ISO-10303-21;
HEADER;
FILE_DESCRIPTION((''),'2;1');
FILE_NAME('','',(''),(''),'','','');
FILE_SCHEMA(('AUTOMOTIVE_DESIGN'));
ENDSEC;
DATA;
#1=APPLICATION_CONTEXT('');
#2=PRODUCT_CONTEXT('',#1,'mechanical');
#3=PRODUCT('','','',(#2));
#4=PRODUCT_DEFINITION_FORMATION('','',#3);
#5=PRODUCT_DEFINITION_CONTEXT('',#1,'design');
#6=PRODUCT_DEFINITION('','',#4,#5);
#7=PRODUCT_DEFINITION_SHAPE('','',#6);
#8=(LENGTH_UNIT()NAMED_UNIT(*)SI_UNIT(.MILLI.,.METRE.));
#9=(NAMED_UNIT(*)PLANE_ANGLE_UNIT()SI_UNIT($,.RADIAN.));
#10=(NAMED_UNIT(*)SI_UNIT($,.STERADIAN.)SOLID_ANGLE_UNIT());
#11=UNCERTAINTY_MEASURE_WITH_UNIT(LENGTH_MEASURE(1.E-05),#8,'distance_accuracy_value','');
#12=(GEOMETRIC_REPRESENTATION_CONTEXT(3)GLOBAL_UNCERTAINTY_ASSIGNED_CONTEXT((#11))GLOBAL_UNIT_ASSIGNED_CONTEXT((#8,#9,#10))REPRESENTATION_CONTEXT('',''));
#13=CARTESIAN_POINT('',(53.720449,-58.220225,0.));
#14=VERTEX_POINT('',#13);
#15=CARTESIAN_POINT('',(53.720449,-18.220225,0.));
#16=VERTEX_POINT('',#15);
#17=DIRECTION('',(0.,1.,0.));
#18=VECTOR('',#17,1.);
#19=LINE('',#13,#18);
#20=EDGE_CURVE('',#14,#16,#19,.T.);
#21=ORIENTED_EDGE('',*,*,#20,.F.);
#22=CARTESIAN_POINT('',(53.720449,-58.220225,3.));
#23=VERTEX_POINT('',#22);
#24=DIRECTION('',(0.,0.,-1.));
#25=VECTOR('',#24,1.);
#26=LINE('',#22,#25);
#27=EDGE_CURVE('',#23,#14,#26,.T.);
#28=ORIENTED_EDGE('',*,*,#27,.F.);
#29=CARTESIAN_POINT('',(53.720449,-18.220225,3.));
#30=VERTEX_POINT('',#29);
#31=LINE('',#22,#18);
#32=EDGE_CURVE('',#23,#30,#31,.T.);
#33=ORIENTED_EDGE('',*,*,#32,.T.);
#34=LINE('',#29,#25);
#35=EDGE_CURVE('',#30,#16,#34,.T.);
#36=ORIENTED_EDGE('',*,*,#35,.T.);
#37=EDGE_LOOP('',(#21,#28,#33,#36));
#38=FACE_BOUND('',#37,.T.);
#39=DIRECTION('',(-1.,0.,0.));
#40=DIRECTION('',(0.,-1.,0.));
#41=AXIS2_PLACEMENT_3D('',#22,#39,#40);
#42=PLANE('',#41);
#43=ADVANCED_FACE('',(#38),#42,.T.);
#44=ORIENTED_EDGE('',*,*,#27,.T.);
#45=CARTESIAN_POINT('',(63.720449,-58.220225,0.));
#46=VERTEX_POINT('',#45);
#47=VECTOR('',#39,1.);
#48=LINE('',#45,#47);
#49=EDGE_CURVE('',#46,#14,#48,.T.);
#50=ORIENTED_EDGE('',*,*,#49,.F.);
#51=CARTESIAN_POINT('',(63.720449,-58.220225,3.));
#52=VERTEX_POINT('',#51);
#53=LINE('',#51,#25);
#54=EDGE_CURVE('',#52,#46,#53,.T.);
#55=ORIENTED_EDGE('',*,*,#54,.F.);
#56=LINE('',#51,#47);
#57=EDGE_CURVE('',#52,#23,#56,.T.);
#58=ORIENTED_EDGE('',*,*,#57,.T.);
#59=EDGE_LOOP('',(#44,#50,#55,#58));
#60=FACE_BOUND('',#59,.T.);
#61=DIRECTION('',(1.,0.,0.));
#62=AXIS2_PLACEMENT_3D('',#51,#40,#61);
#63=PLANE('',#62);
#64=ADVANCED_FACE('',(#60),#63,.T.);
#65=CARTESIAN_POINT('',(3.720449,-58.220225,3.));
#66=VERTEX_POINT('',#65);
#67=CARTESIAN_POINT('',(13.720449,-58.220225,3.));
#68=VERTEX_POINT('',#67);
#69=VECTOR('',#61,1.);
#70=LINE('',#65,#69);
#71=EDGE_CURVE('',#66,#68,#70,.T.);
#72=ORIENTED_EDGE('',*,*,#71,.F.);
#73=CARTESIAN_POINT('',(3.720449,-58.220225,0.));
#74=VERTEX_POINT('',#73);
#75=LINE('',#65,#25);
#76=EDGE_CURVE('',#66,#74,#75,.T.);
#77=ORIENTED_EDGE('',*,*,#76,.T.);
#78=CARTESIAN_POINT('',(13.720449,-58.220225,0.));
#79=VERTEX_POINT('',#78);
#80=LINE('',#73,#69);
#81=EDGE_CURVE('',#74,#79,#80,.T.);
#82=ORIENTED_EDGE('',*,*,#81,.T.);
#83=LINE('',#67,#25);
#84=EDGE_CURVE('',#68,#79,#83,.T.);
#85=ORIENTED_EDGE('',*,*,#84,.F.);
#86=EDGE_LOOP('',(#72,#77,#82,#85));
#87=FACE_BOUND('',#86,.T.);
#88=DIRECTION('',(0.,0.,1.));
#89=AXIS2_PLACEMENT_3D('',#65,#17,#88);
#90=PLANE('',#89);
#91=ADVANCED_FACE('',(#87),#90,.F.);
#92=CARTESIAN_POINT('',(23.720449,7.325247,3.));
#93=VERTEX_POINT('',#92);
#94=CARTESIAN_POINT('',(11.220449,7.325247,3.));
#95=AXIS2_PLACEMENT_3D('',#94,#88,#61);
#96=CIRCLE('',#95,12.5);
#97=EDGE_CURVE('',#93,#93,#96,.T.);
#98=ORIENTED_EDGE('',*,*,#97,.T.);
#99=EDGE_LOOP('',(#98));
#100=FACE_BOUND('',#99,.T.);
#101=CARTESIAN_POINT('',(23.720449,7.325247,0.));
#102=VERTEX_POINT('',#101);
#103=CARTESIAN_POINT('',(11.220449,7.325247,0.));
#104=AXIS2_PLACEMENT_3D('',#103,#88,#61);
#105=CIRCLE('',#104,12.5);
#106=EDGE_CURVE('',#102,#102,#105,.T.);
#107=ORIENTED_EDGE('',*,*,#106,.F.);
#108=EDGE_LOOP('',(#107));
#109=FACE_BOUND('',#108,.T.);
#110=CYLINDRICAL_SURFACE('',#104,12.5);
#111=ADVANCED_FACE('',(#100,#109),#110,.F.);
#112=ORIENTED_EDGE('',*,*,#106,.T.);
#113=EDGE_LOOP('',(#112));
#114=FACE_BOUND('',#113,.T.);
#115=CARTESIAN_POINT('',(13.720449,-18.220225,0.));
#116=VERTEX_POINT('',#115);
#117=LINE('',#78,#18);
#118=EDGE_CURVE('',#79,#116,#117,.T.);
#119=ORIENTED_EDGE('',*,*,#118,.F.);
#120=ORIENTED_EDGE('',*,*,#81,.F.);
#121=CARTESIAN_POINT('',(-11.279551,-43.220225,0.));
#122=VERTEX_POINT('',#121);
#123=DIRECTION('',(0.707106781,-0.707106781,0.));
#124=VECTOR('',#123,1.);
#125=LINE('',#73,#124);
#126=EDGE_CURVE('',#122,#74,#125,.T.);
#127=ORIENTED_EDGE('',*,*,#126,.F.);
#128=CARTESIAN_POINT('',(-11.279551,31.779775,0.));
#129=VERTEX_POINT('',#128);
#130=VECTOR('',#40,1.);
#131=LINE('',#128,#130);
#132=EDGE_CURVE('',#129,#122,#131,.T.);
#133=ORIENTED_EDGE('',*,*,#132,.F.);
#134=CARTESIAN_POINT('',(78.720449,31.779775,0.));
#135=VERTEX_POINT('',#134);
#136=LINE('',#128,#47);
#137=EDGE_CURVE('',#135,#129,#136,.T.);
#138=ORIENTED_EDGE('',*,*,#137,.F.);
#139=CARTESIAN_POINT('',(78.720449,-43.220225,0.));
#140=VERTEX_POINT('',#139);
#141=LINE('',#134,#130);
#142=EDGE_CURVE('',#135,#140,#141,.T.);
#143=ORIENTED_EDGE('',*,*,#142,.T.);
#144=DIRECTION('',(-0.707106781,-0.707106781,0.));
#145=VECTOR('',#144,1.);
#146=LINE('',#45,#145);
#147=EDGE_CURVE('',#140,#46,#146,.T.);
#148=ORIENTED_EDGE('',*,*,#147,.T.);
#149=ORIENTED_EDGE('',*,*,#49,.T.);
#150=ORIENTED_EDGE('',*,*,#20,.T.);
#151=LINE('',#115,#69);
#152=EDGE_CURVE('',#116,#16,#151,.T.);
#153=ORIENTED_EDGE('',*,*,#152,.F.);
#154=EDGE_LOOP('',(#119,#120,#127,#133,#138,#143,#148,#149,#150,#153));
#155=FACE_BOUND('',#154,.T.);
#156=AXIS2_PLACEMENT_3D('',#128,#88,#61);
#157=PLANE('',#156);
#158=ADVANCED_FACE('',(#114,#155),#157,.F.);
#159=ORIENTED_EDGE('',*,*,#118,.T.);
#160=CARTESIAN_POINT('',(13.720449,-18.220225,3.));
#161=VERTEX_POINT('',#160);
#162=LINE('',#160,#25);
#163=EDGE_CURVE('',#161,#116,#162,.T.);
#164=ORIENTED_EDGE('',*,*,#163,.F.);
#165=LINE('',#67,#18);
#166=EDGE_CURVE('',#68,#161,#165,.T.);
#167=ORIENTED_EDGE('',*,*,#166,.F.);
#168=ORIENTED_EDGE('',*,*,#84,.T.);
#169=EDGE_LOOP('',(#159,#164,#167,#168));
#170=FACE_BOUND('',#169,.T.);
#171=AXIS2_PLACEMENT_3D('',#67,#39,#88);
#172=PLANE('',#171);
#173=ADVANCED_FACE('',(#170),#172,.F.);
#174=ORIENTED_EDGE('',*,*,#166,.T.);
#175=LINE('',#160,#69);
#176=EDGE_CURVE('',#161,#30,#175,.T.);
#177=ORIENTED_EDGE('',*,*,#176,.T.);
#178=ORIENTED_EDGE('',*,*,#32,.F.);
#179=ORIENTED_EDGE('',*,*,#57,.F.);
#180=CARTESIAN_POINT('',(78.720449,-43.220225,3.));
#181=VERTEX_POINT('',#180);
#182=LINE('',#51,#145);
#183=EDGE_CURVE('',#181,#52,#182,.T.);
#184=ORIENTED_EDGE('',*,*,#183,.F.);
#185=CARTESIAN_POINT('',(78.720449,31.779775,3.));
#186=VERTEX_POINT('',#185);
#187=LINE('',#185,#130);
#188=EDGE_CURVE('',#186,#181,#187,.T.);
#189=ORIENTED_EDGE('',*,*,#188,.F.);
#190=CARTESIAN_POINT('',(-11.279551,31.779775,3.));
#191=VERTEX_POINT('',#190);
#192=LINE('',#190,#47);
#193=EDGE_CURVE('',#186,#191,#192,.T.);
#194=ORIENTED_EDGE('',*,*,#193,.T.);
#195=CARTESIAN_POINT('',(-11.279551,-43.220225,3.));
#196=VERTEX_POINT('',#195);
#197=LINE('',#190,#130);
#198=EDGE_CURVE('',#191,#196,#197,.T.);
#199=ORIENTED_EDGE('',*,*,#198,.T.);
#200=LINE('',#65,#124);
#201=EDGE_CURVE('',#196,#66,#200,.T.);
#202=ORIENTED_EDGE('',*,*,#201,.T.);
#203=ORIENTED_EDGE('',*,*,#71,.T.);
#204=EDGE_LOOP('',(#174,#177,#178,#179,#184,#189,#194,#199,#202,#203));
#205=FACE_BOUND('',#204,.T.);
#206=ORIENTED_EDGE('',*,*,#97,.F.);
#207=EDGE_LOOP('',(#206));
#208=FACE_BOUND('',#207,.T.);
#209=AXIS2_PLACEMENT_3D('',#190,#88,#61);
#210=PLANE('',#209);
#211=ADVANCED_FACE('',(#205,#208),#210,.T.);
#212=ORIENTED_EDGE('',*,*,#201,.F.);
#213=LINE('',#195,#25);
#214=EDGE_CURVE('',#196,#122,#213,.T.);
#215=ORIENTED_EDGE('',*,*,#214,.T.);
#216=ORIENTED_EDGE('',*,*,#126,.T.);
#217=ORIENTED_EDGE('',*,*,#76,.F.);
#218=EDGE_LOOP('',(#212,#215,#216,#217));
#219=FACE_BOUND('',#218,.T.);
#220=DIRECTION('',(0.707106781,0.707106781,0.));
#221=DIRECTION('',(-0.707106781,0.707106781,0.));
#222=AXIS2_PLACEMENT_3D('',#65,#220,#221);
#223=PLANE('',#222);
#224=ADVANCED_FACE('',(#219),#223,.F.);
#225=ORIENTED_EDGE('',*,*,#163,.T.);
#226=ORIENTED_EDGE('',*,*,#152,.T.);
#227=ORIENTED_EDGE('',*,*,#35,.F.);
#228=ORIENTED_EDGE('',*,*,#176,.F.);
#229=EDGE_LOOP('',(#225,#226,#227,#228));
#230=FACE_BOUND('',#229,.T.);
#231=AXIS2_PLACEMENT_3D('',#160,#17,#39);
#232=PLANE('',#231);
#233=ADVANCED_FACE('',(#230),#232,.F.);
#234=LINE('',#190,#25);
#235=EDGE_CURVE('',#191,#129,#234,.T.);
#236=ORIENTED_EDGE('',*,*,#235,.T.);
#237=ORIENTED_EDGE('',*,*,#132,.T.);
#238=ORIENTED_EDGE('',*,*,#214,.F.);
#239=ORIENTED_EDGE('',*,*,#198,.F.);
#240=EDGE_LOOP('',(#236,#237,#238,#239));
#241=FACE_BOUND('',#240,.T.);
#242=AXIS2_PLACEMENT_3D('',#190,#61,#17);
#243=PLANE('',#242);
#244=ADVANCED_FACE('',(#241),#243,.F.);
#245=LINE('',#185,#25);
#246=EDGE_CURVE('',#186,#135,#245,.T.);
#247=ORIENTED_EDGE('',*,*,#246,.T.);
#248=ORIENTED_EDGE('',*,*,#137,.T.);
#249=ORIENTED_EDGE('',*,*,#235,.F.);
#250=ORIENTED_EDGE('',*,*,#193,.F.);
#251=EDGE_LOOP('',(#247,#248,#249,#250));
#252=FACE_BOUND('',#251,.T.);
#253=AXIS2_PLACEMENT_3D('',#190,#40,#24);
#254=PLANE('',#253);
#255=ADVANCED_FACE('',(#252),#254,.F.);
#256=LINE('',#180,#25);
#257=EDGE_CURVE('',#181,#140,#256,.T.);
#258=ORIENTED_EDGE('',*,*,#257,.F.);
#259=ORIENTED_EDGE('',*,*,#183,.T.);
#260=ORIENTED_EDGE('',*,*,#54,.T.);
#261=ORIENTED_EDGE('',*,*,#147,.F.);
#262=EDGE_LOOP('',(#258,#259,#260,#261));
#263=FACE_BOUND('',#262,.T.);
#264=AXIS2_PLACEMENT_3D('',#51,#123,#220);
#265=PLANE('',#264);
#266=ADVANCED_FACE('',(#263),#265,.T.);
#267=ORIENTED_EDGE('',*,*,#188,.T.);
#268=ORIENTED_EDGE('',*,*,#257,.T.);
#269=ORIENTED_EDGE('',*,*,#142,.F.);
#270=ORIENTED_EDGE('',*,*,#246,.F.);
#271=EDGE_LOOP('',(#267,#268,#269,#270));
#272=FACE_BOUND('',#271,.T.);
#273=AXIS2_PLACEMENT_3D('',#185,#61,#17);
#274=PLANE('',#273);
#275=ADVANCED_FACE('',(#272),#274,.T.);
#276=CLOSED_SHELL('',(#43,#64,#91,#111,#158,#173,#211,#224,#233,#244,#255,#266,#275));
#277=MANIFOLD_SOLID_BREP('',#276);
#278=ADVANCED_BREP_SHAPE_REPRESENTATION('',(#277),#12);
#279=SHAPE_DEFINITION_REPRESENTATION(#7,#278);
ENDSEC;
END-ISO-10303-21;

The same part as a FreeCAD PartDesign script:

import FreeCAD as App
import Part
import Sketcher
Q = App.Units.Quantity

doc = App.newDocument("Part")
params = doc.addObject("Spreadsheet::Sheet", "Params")
for row, (alias, value) in enumerate([
    ("sketch1_width", "10 mm"),
    ("sketch1_width2", "20 mm"),
    ("sketch1_width3", "45 mm"),
    ("sketch1_height", "40 mm"),
    ("sketch1_height2", "50 mm"),
    ("pad1_length", "3 mm"),
    ("sketch2_diameter", "25 mm"),
], start=1):
    params.set(f"A{row}", alias)
    params.set(f"B{row}", "=" + value)
    params.setAlias(f"B{row}", alias)

body = doc.addObject("PartDesign::Body", "Body")

# Sketch on XY plane
sketch1 = body.newObject("Sketcher::SketchObject", "Sketch")
sketch1.AttachmentSupport = (doc.getObject("XY_Plane"), [""])
sketch1.MapMode = "FlatFace"
sketch1.addGeometry([
    Part.LineSegment(App.Vector(-11, -43, 0), App.Vector(4, -58, 0)),  # 0
    Part.LineSegment(App.Vector(4, -58, 0), App.Vector(14, -58, 0)),  # 1
    Part.LineSegment(App.Vector(14, -58, 0), App.Vector(14, -18, 0)),  # 2
    Part.LineSegment(App.Vector(14, -18, 0), App.Vector(34, -18, 0)),  # 3
    Part.LineSegment(App.Vector(34, -18, 0), App.Vector(34, 32, 0)),  # 4
    Part.LineSegment(App.Vector(34, 32, 0), App.Vector(-11, 32, 0)),  # 5
    Part.LineSegment(App.Vector(-11, 32, 0), App.Vector(-11, -43, 0)),  # 6
], False)
sketch1.addConstraint([
    Sketcher.Constraint("Coincident", 0, 2, 1, 1),
    Sketcher.Constraint("Coincident", 1, 2, 2, 1),
    Sketcher.Constraint("Coincident", 2, 2, 3, 1),
    Sketcher.Constraint("Coincident", 3, 2, 4, 1),
    Sketcher.Constraint("Coincident", 4, 2, 5, 1),
    Sketcher.Constraint("Coincident", 5, 2, 6, 1),
    Sketcher.Constraint("Coincident", 6, 2, 0, 1),
    Sketcher.Constraint("Horizontal", 1),
    Sketcher.Constraint("Vertical", 2),
    Sketcher.Constraint("Horizontal", 3),
    Sketcher.Constraint("Vertical", 4),
    Sketcher.Constraint("Horizontal", 5),
    Sketcher.Constraint("Vertical", 6),
    Sketcher.Constraint("DistanceX", 1, 1, 1, 2, Q("10 mm")),
    Sketcher.Constraint("DistanceX", 3, 1, 3, 2, Q("20 mm")),
    Sketcher.Constraint("DistanceX", 5, 2, 5, 1, Q("45 mm")),
    Sketcher.Constraint("DistanceY", 2, 1, 2, 2, Q("40 mm")),
    Sketcher.Constraint("DistanceY", 4, 1, 4, 2, Q("50 mm")),
    Sketcher.Constraint("DistanceY", 6, 2, 6, 1, Q("75 mm")),
    Sketcher.Constraint("DistanceX", -1, 1, 0, 2, Q("3.720449 mm")),
    Sketcher.Constraint("DistanceY", 0, 2, -1, 1, Q("58.220225 mm")),
])
sketch1.setExpression("Constraints[13]", "Params.sketch1_width")
sketch1.setExpression("Constraints[14]", "Params.sketch1_width2")
sketch1.setExpression("Constraints[15]", "Params.sketch1_width3")
sketch1.setExpression("Constraints[16]", "Params.sketch1_height")
sketch1.setExpression("Constraints[17]", "Params.sketch1_height2")
pad1 = body.newObject("PartDesign::Pad", "Pad")
pad1.Profile = sketch1
pad1.setExpression("Length", "Params.pad1_length")
doc.recompute()

datumplane = body.newObject("PartDesign::Plane", "DatumPlane")
datumplane.AttachmentSupport = (doc.getObject("YZ_Plane"), [""])
datumplane.MapMode = "FlatFace"
datumplane.AttachmentOffset = App.Placement(App.Vector(0, 0, 33.720449), App.Rotation())
mirrored = body.newObject("PartDesign::Mirrored", "Mirrored")
mirrored.Originals = [pad1]
mirrored.MirrorPlane = (datumplane, [""])
body.Tip = mirrored

# Sketch on XY plane
sketch2 = body.newObject("Sketcher::SketchObject", "Sketch001")
sketch2.AttachmentSupport = (doc.getObject("XY_Plane"), [""])
sketch2.MapMode = "FlatFace"
sketch2.AttachmentOffset = App.Placement(App.Vector(0, 0, 3), App.Rotation())
sketch2.addGeometry(Part.Circle(App.Vector(11, 7, 0), App.Vector(0, 0, 1), 12), False)
sketch2.addConstraint([
    Sketcher.Constraint("Diameter", 0, Q("25 mm")),
    Sketcher.Constraint("DistanceX", -1, 1, 0, 3, Q("11.220449 mm")),
    Sketcher.Constraint("DistanceY", -1, 1, 0, 3, Q("7.325247 mm")),
])
sketch2.setExpression("Constraints[0]", "Params.sketch2_diameter")
pocket1 = body.newObject("PartDesign::Pocket", "Pocket")
pocket1.Profile = sketch2
pocket1.Type = "ThroughAll"

doc.recompute()
